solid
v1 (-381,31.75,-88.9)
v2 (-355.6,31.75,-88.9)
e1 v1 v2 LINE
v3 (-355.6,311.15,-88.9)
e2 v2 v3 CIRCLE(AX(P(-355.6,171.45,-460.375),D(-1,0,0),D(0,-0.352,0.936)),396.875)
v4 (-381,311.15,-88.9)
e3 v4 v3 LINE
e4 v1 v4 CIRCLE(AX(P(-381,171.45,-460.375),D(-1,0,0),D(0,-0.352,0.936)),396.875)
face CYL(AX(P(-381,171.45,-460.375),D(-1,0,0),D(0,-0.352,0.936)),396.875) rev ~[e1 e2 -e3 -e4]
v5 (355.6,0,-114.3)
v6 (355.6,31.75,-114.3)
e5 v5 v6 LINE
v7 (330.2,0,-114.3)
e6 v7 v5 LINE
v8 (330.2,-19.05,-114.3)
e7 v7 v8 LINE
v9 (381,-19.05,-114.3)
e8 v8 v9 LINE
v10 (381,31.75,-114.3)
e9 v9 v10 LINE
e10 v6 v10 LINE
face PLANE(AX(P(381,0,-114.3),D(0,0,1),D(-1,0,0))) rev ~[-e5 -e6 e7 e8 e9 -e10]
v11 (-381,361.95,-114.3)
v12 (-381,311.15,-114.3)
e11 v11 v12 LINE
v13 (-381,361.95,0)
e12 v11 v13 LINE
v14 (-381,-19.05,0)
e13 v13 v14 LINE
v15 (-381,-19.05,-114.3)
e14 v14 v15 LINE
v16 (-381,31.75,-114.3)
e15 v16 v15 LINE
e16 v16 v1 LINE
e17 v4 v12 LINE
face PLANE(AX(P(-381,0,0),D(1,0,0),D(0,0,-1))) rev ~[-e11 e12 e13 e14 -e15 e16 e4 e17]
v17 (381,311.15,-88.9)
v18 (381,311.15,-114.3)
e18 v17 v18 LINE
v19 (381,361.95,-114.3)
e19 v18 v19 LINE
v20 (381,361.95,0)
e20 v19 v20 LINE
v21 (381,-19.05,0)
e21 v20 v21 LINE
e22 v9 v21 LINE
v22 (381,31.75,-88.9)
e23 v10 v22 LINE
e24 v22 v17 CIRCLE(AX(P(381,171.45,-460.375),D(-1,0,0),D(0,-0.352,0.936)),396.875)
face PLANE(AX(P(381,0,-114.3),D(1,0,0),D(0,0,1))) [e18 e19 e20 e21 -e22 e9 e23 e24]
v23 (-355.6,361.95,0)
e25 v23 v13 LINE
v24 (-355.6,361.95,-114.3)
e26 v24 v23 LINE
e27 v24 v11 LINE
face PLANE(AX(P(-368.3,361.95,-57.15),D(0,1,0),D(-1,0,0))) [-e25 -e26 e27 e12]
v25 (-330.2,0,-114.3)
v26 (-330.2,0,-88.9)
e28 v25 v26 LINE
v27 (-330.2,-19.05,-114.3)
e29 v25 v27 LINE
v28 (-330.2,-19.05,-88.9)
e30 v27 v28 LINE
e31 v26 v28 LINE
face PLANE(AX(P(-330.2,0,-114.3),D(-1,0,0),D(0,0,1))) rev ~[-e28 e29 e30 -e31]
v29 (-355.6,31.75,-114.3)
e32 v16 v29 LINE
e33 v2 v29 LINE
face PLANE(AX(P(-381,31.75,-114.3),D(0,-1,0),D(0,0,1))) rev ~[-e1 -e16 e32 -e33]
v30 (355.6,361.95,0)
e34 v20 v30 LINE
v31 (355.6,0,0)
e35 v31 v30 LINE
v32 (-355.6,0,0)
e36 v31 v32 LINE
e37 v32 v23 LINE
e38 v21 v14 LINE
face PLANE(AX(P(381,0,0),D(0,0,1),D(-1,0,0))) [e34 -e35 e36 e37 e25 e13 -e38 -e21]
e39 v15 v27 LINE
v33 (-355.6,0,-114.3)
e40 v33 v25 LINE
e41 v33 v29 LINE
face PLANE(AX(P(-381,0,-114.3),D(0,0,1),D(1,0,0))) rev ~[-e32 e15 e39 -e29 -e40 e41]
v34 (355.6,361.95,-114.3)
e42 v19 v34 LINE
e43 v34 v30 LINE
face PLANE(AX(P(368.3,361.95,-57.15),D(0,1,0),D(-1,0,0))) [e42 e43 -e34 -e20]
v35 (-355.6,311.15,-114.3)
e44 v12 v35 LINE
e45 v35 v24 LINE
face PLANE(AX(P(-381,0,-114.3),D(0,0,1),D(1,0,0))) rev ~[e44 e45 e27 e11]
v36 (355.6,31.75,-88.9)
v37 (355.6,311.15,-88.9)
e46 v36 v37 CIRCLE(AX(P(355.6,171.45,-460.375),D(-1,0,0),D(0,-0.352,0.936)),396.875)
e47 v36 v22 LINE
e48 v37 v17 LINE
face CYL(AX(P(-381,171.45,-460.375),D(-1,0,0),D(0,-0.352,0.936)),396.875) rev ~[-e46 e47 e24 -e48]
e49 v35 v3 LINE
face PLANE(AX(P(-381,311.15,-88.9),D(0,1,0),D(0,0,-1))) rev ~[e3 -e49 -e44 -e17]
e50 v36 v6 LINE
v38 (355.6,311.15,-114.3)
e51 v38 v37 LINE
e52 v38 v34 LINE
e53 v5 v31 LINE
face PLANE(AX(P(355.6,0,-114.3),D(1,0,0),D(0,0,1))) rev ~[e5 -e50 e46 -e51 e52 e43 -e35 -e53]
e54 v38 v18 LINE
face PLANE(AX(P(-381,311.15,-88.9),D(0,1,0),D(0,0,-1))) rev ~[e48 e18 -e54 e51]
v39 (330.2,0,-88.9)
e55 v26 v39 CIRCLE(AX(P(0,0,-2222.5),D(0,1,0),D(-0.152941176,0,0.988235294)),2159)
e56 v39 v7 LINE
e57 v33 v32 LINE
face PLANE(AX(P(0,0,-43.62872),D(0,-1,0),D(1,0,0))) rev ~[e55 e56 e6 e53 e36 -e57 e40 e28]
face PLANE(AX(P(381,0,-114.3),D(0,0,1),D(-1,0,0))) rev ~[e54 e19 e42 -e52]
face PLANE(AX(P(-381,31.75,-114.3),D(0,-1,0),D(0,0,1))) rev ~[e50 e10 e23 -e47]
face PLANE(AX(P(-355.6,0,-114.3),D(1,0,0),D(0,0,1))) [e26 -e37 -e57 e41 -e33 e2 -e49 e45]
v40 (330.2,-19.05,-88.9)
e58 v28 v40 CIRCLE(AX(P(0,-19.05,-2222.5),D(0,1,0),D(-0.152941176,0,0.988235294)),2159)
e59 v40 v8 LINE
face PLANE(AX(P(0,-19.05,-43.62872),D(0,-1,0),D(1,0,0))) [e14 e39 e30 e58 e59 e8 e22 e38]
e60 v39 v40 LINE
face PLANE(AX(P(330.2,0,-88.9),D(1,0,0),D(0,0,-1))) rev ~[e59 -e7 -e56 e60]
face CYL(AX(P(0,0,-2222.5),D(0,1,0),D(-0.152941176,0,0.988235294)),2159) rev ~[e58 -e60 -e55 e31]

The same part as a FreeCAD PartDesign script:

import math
import FreeCAD as App
import Part
import Sketcher
from FreeCAD import Vector
Q = App.Units.Quantity

doc = App.newDocument("Part")
params = doc.addObject("Spreadsheet::Sheet", "Params")
for row, (alias, value) in enumerate([
    ("sketch1_radius", "85 in"),
    ("sketch1_width", "30 in"),
    ("sketch1_width2", "2 in"),
    ("sketch1_height", "1 in"),
    ("sketch1_height2", "4.5 in"),
    ("pad1_length", "0.75 in"),
    ("sketch2_width", "1 in"),
    ("sketch2_height", "4.5 in"),
    ("pad2_length", "14.25 in"),
    ("sketch3_width", "11 in"),
    ("sketch3_height", "1 in"),
    ("sketch3_radius", "15.625 in"),
    ("pocket1_length", "30 in"),
], start=1):
    params.set(f"A{row}", alias)
    params.set(f"B{row}", "=" + value)
    params.setAlias(f"B{row}", alias)

body = doc.addObject("PartDesign::Body", "Body")

# Sketch on XZ plane
sketch1 = body.newObject("Sketcher::SketchObject", "Sketch")
sketch1.AttachmentSupport = (doc.getObject("XZ_Plane"), [""])
sketch1.MapMode = "FlatFace"
sketch1.addGeometry(Part.LineSegment(Vector(381, 0, 0), Vector(-381, 0, 0)), False)
sketch1.addGeometry(Part.LineSegment(Vector(-381, 0, 0), Vector(-381, -114, 0)), False)
sketch1.addGeometry(Part.LineSegment(Vector(-381, -114, 0), Vector(-330, -114, 0)), False)
sketch1.addGeometry(Part.LineSegment(Vector(-330, -114, 0), Vector(-330, -89, 0)), False)
sketch1.addGeometry(Part.ArcOfCircle(Part.Circle(Vector(0, -2222, 0), Vector(0, 0, 1), 2159), math.radians(81.2), math.radians(98.8)), False)
sketch1.addGeometry(Part.LineSegment(Vector(330, -89, 0), Vector(330, -114, 0)), False)
sketch1.addGeometry(Part.LineSegment(Vector(330, -114, 0), Vector(381, -114, 0)), False)
sketch1.addGeometry(Part.LineSegment(Vector(381, -114, 0), Vector(381, 0, 0)), False)
sketch1.addConstraint(Sketcher.Constraint("Coincident", 0, 2, 1, 1))
sketch1.addConstraint(Sketcher.Constraint("Coincident", 1, 2, 2, 1))
sketch1.addConstraint(Sketcher.Constraint("Coincident", 2, 2, 3, 1))
sketch1.addConstraint(Sketcher.Constraint("Coincident", 3, 2, 4, 2))
sketch1.addConstraint(Sketcher.Constraint("Coincident", 4, 1, 5, 1))
sketch1.addConstraint(Sketcher.Constraint("Coincident", 5, 2, 6, 1))
sketch1.addConstraint(Sketcher.Constraint("Coincident", 6, 2, 7, 1))
sketch1.addConstraint(Sketcher.Constraint("Coincident", 7, 2, 0, 1))
sketch1.addConstraint(Sketcher.Constraint("Horizontal", 0))
sketch1.addConstraint(Sketcher.Constraint("Vertical", 1))
sketch1.addConstraint(Sketcher.Constraint("Horizontal", 2))
sketch1.addConstraint(Sketcher.Constraint("Vertical", 3))
sketch1.addConstraint(Sketcher.Constraint("Vertical", 5))
sketch1.addConstraint(Sketcher.Constraint("Horizontal", 6))
sketch1.addConstraint(Sketcher.Constraint("Vertical", 7))
sketch1.addConstraint(Sketcher.Constraint("Symmetric", 0, 2, 7, 2, -1, 1))
sketch1.addConstraint(Sketcher.Constraint("Symmetric", 2, 2, 5, 2, -2))
sketch1.addConstraint(Sketcher.Constraint("PointOnObject", 4, 3, -2))
sketch1.addConstraint(Sketcher.Constraint("Radius", 4, Q("85 in")))
sketch1.addConstraint(Sketcher.Constraint("DistanceX", 0, 2, 0, 1, Q("30 in")))
sketch1.addConstraint(Sketcher.Constraint("DistanceX", 2, 1, 2, 2, Q("2 in")))
sketch1.addConstraint(Sketcher.Constraint("DistanceY", 3, 1, 3, 2, Q("1 in")))
sketch1.addConstraint(Sketcher.Constraint("DistanceY", 1, 2, 1, 1, Q("4.5 in")))
sketch1.setExpression("Constraints[18]", "Params.sketch1_radius")
sketch1.setExpression("Constraints[19]", "Params.sketch1_width")
sketch1.setExpression("Constraints[20]", "Params.sketch1_width2")
sketch1.setExpression("Constraints[21]", "Params.sketch1_height")
sketch1.setExpression("Constraints[22]", "Params.sketch1_height2")
pad1 = body.newObject("PartDesign::Pad", "Pad")
pad1.Profile = sketch1
pad1.setExpression("Length", "Params.pad1_length")

# Sketch on XZ plane
sketch2 = body.newObject("Sketcher::SketchObject", "Sketch001")
sketch2.AttachmentSupport = (doc.getObject("XZ_Plane"), [""])
sketch2.MapMode = "FlatFace"
sketch2.addGeometry(Part.LineSegment(Vector(381, 0, 0), Vector(381, -114, 0)), False)
sketch2.addGeometry(Part.LineSegment(Vector(381, -114, 0), Vector(356, -114, 0)), False)
sketch2.addGeometry(Part.LineSegment(Vector(356, -114, 0), Vector(356, 0, 0)), False)
sketch2.addGeometry(Part.LineSegment(Vector(356, 0, 0), Vector(381, 0, 0)), False)
sketch2.addGeometry(Part.LineSegment(Vector(-356, 0, 0), Vector(-356, -114, 0)), False)
sketch2.addGeometry(Part.LineSegment(Vector(-356, -114, 0), Vector(-381, -114, 0)), False)
sketch2.addGeometry(Part.LineSegment(Vector(-381, -114, 0), Vector(-381, 0, 0)), False)
sketch2.addGeometry(Part.LineSegment(Vector(-381, 0, 0), Vector(-356, 0, 0)), False)
sketch2.addConstraint(Sketcher.Constraint("Coincident", 0, 2, 1, 1))
sketch2.addConstraint(Sketcher.Constraint("Coincident", 1, 2, 2, 1))
sketch2.addConstraint(Sketcher.Constraint("Coincident", 2, 2, 3, 1))
sketch2.addConstraint(Sketcher.Constraint("Coincident", 3, 2, 0, 1))
sketch2.addConstraint(Sketcher.Constraint("Coincident", 4, 2, 5, 1))
sketch2.addConstraint(Sketcher.Constraint("Coincident", 5, 2, 6, 1))
sketch2.addConstraint(Sketcher.Constraint("Coincident", 6, 2, 7, 1))
sketch2.addConstraint(Sketcher.Constraint("Coincident", 7, 2, 4, 1))
sketch2.addConstraint(Sketcher.Constraint("Vertical", 0))
sketch2.addConstraint(Sketcher.Constraint("Horizontal", 1))
sketch2.addConstraint(Sketcher.Constraint("Vertical", 2))
sketch2.addConstraint(Sketcher.Constraint("Horizontal", 3))
sketch2.addConstraint(Sketcher.Constraint("Vertical", 4))
sketch2.addConstraint(Sketcher.Constraint("Horizontal", 5))
sketch2.addConstraint(Sketcher.Constraint("Vertical", 6))
sketch2.addConstraint(Sketcher.Constraint("Horizontal", 7))
sketch2.addConstraint(Sketcher.Constraint("Symmetric", 3, 2, 6, 2, -1, 1))
sketch2.addConstraint(Sketcher.Constraint("Symmetric", 1, 2, 4, 2, -2))
sketch2.addConstraint(Sketcher.Constraint("PointOnObject", 2, 2, -1))
sketch2.addConstraint(Sketcher.Constraint("DistanceX", 1, 2, 1, 1, Q("1 in")))
sketch2.addConstraint(Sketcher.Constraint("DistanceY", 0, 2, 0, 1, Q("4.5 in")))
sketch2.addConstraint(Sketcher.Constraint("DistanceX", -1, 1, 0, 2, Q("15 in")))
sketch2.setExpression("Constraints[19]", "Params.sketch2_width")
sketch2.setExpression("Constraints[20]", "Params.sketch2_height")
pad2 = body.newObject("PartDesign::Pad", "Pad001")
pad2.Profile = sketch2
pad2.setExpression("Length", "Params.pad2_length")
pad2.Reversed = True

# Sketch on YZ plane
sketch3 = body.newObject("Sketcher::SketchObject", "Sketch002")
sketch3.AttachmentSupport = (doc.getObject("YZ_Plane"), [""])
sketch3.MapMode = "FlatFace"
sketch3.AttachmentOffset = App.Placement(Vector(0, 0, -15 * 25.4), App.Rotation())
sketch3.addGeometry(Part.LineSegment(Vector(311, -89, 0), Vector(311, -114, 0)), False)
sketch3.addGeometry(Part.LineSegment(Vector(311, -114, 0), Vector(32, -114, 0)), False)
sketch3.addGeometry(Part.LineSegment(Vector(32, -114, 0), Vector(32, -89, 0)), False)
sketch3.addGeometry(Part.ArcOfCircle(Part.Circle(Vector(171, -460, 0), Vector(0, 0, 1), 397), math.radians(69), math.radians(111)), False)
sketch3.addConstraint(Sketcher.Constraint("Coincident", 0, 2, 1, 1))
sketch3.addConstraint(Sketcher.Constraint("Coincident", 1, 2, 2, 1))
sketch3.addConstraint(Sketcher.Constraint("Coincident", 2, 2, 3, 2))
sketch3.addConstraint(Sketcher.Constraint("Coincident", 3, 1, 0, 1))
sketch3.addConstraint(Sketcher.Constraint("Vertical", 0))
sketch3.addConstraint(Sketcher.Constraint("Horizontal", 1))
sketch3.addConstraint(Sketcher.Constraint("Vertical", 2))
sketch3.addConstraint(Sketcher.Constraint("Horizontal", 2, 2, 3, 1))
sketch3.addConstraint(Sketcher.Constraint("DistanceX", 1, 2, 1, 1, Q("11 in")))
sketch3.addConstraint(Sketcher.Constraint("DistanceY", 0, 2, 0, 1, Q("1 in")))
sketch3.addConstraint(Sketcher.Constraint("Radius", 3, Q("15.625 in")))
sketch3.addConstraint(Sketcher.Constraint("DistanceY", 0, 2, -1, 1, Q("4.5 in")))
sketch3.addConstraint(Sketcher.Constraint("DistanceX", -1, 1, 3, 3, Q("6.75 in")))
sketch3.setExpression("Constraints[8]", "Params.sketch3_width")
sketch3.setExpression("Constraints[9]", "Params.sketch3_height")
sketch3.setExpression("Constraints[10]", "Params.sketch3_radius")
pocket1 = body.newObject("PartDesign::Pocket", "Pocket")
pocket1.Profile = sketch3
pocket1.setExpression("Length", "Params.pocket1_length")
pocket1.Reversed = True

doc.recompute()
